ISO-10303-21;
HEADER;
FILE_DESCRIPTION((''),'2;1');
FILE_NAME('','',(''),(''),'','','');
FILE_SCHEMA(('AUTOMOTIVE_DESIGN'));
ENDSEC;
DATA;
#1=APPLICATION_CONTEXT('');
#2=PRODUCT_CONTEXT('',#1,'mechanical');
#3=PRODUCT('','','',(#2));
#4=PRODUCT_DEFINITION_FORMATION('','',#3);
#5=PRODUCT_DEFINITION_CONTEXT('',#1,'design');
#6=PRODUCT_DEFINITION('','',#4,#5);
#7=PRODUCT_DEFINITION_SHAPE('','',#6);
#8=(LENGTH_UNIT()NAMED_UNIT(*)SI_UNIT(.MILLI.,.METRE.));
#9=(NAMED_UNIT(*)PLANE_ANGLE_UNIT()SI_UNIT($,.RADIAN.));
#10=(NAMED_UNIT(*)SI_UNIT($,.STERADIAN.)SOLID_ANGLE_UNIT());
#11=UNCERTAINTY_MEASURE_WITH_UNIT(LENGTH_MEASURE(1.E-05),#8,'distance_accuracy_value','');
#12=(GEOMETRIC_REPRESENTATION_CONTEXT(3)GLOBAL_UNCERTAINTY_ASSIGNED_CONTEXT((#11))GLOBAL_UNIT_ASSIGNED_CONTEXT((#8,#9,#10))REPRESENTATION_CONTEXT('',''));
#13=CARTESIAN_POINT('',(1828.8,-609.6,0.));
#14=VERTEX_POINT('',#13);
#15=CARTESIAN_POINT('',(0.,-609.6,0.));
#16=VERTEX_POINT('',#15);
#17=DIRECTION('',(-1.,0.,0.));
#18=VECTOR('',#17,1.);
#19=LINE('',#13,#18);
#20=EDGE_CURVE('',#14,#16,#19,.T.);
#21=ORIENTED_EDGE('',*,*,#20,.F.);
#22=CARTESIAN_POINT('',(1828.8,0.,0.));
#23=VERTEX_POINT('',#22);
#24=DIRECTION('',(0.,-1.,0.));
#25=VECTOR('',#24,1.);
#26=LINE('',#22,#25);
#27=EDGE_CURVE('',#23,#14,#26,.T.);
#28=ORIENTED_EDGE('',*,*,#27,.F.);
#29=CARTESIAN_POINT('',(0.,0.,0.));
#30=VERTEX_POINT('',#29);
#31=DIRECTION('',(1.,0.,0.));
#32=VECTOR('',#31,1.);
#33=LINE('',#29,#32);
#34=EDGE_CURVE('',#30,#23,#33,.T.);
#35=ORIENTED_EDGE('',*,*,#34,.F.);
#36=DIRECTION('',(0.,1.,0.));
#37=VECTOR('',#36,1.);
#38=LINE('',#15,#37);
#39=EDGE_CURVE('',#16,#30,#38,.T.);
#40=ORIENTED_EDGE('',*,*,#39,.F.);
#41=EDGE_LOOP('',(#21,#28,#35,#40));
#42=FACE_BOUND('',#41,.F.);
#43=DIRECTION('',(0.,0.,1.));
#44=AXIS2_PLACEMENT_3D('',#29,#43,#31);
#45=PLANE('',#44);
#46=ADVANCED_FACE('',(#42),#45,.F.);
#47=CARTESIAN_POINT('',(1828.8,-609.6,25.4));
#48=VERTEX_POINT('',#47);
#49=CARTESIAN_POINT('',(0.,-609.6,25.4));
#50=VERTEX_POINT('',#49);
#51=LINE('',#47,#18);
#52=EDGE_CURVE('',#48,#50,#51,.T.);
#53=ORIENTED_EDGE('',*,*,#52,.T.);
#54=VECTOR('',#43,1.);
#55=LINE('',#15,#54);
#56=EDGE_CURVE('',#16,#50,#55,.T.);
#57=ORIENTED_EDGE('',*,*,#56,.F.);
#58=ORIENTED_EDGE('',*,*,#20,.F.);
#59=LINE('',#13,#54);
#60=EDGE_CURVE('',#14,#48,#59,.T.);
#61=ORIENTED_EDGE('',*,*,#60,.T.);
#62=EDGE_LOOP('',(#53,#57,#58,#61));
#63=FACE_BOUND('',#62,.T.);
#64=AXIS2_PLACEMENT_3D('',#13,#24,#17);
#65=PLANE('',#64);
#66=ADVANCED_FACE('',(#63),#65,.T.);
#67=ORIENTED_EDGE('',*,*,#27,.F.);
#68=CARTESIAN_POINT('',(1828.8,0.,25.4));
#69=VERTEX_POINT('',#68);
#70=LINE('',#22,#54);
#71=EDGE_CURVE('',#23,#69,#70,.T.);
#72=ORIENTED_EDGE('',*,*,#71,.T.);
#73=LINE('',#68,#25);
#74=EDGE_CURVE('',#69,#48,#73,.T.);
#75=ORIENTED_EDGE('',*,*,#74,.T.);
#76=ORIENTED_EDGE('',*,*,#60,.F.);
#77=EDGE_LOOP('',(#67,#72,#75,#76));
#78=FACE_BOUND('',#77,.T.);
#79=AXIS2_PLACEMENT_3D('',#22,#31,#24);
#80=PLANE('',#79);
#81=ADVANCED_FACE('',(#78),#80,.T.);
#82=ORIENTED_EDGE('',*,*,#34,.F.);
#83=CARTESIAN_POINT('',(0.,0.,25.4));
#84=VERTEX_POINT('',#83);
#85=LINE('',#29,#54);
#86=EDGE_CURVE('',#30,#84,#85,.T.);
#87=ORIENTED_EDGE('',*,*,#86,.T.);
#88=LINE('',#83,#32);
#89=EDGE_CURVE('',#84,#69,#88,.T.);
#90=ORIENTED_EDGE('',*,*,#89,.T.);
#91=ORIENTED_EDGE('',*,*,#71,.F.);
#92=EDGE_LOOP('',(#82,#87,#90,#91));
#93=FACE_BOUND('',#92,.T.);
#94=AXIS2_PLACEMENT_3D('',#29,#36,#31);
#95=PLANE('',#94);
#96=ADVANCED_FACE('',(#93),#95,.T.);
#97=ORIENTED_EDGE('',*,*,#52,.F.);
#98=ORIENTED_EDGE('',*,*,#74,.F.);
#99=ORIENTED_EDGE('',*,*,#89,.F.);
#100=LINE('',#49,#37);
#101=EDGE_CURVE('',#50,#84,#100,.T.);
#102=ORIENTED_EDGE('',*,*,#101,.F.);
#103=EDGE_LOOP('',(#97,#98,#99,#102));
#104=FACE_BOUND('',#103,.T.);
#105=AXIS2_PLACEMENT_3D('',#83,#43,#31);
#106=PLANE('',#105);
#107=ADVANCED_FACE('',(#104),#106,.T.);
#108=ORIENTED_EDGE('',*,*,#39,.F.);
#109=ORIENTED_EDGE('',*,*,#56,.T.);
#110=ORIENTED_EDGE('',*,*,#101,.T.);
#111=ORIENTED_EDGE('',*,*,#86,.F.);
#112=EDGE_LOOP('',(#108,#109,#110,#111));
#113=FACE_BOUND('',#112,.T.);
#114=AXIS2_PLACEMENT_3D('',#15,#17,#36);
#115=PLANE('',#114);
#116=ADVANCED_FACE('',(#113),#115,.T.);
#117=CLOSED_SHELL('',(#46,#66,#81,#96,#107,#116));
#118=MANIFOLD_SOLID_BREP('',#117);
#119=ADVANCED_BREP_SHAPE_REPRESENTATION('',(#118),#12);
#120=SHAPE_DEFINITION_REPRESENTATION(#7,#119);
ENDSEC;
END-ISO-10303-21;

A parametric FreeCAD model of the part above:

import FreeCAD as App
import Part
import Sketcher
from FreeCAD import Vector
Q = App.Units.Quantity


def add_polygon(sketch, points):
    """Adds a closed chain of lines whose ends are joined by coincident constraints."""
    first, n = sketch.GeometryCount, len(points)
    for a, b in zip(points, points[1:] + points[:1]):
        sketch.addGeometry(Part.LineSegment(App.Vector(*a, 0), App.Vector(*b, 0)), False)
    for i in range(n):
        sketch.addConstraint(Sketcher.Constraint("Coincident", first + i, 2, first + (i + 1) % n, 1))

doc = App.newDocument("Part")
body = doc.addObject("PartDesign::Body", "Body")

# Sketch on XY plane
sketch1 = body.newObject("Sketcher::SketchObject", "Sketch")
sketch1.AttachmentSupport = (doc.getObject("XY_Plane"), [""])
sketch1.MapMode = "FlatFace"
add_polygon(sketch1, [(1828.8, 0), (0, 0), (0, -609.6), (1828.8, -609.6)])  # lines 0-3
sketch1.addConstraint([
    Sketcher.Constraint("Horizontal", 0),
    Sketcher.Constraint("Vertical", 1),
    Sketcher.Constraint("Horizontal", 2),
    Sketcher.Constraint("Vertical", 3),
    Sketcher.Constraint("Coincident", 0, 2, -1, 1),
    Sketcher.Constraint("DistanceX", 0, 2, 0, 1, Q("72 in")),
    Sketcher.Constraint("DistanceY", 1, 2, 1, 1, Q("24 in")),
])
pad1 = body.newObject("PartDesign::Pad", "Pad")
pad1.Profile = sketch1
pad1.Length = Q("1 in")

doc.recompute()
